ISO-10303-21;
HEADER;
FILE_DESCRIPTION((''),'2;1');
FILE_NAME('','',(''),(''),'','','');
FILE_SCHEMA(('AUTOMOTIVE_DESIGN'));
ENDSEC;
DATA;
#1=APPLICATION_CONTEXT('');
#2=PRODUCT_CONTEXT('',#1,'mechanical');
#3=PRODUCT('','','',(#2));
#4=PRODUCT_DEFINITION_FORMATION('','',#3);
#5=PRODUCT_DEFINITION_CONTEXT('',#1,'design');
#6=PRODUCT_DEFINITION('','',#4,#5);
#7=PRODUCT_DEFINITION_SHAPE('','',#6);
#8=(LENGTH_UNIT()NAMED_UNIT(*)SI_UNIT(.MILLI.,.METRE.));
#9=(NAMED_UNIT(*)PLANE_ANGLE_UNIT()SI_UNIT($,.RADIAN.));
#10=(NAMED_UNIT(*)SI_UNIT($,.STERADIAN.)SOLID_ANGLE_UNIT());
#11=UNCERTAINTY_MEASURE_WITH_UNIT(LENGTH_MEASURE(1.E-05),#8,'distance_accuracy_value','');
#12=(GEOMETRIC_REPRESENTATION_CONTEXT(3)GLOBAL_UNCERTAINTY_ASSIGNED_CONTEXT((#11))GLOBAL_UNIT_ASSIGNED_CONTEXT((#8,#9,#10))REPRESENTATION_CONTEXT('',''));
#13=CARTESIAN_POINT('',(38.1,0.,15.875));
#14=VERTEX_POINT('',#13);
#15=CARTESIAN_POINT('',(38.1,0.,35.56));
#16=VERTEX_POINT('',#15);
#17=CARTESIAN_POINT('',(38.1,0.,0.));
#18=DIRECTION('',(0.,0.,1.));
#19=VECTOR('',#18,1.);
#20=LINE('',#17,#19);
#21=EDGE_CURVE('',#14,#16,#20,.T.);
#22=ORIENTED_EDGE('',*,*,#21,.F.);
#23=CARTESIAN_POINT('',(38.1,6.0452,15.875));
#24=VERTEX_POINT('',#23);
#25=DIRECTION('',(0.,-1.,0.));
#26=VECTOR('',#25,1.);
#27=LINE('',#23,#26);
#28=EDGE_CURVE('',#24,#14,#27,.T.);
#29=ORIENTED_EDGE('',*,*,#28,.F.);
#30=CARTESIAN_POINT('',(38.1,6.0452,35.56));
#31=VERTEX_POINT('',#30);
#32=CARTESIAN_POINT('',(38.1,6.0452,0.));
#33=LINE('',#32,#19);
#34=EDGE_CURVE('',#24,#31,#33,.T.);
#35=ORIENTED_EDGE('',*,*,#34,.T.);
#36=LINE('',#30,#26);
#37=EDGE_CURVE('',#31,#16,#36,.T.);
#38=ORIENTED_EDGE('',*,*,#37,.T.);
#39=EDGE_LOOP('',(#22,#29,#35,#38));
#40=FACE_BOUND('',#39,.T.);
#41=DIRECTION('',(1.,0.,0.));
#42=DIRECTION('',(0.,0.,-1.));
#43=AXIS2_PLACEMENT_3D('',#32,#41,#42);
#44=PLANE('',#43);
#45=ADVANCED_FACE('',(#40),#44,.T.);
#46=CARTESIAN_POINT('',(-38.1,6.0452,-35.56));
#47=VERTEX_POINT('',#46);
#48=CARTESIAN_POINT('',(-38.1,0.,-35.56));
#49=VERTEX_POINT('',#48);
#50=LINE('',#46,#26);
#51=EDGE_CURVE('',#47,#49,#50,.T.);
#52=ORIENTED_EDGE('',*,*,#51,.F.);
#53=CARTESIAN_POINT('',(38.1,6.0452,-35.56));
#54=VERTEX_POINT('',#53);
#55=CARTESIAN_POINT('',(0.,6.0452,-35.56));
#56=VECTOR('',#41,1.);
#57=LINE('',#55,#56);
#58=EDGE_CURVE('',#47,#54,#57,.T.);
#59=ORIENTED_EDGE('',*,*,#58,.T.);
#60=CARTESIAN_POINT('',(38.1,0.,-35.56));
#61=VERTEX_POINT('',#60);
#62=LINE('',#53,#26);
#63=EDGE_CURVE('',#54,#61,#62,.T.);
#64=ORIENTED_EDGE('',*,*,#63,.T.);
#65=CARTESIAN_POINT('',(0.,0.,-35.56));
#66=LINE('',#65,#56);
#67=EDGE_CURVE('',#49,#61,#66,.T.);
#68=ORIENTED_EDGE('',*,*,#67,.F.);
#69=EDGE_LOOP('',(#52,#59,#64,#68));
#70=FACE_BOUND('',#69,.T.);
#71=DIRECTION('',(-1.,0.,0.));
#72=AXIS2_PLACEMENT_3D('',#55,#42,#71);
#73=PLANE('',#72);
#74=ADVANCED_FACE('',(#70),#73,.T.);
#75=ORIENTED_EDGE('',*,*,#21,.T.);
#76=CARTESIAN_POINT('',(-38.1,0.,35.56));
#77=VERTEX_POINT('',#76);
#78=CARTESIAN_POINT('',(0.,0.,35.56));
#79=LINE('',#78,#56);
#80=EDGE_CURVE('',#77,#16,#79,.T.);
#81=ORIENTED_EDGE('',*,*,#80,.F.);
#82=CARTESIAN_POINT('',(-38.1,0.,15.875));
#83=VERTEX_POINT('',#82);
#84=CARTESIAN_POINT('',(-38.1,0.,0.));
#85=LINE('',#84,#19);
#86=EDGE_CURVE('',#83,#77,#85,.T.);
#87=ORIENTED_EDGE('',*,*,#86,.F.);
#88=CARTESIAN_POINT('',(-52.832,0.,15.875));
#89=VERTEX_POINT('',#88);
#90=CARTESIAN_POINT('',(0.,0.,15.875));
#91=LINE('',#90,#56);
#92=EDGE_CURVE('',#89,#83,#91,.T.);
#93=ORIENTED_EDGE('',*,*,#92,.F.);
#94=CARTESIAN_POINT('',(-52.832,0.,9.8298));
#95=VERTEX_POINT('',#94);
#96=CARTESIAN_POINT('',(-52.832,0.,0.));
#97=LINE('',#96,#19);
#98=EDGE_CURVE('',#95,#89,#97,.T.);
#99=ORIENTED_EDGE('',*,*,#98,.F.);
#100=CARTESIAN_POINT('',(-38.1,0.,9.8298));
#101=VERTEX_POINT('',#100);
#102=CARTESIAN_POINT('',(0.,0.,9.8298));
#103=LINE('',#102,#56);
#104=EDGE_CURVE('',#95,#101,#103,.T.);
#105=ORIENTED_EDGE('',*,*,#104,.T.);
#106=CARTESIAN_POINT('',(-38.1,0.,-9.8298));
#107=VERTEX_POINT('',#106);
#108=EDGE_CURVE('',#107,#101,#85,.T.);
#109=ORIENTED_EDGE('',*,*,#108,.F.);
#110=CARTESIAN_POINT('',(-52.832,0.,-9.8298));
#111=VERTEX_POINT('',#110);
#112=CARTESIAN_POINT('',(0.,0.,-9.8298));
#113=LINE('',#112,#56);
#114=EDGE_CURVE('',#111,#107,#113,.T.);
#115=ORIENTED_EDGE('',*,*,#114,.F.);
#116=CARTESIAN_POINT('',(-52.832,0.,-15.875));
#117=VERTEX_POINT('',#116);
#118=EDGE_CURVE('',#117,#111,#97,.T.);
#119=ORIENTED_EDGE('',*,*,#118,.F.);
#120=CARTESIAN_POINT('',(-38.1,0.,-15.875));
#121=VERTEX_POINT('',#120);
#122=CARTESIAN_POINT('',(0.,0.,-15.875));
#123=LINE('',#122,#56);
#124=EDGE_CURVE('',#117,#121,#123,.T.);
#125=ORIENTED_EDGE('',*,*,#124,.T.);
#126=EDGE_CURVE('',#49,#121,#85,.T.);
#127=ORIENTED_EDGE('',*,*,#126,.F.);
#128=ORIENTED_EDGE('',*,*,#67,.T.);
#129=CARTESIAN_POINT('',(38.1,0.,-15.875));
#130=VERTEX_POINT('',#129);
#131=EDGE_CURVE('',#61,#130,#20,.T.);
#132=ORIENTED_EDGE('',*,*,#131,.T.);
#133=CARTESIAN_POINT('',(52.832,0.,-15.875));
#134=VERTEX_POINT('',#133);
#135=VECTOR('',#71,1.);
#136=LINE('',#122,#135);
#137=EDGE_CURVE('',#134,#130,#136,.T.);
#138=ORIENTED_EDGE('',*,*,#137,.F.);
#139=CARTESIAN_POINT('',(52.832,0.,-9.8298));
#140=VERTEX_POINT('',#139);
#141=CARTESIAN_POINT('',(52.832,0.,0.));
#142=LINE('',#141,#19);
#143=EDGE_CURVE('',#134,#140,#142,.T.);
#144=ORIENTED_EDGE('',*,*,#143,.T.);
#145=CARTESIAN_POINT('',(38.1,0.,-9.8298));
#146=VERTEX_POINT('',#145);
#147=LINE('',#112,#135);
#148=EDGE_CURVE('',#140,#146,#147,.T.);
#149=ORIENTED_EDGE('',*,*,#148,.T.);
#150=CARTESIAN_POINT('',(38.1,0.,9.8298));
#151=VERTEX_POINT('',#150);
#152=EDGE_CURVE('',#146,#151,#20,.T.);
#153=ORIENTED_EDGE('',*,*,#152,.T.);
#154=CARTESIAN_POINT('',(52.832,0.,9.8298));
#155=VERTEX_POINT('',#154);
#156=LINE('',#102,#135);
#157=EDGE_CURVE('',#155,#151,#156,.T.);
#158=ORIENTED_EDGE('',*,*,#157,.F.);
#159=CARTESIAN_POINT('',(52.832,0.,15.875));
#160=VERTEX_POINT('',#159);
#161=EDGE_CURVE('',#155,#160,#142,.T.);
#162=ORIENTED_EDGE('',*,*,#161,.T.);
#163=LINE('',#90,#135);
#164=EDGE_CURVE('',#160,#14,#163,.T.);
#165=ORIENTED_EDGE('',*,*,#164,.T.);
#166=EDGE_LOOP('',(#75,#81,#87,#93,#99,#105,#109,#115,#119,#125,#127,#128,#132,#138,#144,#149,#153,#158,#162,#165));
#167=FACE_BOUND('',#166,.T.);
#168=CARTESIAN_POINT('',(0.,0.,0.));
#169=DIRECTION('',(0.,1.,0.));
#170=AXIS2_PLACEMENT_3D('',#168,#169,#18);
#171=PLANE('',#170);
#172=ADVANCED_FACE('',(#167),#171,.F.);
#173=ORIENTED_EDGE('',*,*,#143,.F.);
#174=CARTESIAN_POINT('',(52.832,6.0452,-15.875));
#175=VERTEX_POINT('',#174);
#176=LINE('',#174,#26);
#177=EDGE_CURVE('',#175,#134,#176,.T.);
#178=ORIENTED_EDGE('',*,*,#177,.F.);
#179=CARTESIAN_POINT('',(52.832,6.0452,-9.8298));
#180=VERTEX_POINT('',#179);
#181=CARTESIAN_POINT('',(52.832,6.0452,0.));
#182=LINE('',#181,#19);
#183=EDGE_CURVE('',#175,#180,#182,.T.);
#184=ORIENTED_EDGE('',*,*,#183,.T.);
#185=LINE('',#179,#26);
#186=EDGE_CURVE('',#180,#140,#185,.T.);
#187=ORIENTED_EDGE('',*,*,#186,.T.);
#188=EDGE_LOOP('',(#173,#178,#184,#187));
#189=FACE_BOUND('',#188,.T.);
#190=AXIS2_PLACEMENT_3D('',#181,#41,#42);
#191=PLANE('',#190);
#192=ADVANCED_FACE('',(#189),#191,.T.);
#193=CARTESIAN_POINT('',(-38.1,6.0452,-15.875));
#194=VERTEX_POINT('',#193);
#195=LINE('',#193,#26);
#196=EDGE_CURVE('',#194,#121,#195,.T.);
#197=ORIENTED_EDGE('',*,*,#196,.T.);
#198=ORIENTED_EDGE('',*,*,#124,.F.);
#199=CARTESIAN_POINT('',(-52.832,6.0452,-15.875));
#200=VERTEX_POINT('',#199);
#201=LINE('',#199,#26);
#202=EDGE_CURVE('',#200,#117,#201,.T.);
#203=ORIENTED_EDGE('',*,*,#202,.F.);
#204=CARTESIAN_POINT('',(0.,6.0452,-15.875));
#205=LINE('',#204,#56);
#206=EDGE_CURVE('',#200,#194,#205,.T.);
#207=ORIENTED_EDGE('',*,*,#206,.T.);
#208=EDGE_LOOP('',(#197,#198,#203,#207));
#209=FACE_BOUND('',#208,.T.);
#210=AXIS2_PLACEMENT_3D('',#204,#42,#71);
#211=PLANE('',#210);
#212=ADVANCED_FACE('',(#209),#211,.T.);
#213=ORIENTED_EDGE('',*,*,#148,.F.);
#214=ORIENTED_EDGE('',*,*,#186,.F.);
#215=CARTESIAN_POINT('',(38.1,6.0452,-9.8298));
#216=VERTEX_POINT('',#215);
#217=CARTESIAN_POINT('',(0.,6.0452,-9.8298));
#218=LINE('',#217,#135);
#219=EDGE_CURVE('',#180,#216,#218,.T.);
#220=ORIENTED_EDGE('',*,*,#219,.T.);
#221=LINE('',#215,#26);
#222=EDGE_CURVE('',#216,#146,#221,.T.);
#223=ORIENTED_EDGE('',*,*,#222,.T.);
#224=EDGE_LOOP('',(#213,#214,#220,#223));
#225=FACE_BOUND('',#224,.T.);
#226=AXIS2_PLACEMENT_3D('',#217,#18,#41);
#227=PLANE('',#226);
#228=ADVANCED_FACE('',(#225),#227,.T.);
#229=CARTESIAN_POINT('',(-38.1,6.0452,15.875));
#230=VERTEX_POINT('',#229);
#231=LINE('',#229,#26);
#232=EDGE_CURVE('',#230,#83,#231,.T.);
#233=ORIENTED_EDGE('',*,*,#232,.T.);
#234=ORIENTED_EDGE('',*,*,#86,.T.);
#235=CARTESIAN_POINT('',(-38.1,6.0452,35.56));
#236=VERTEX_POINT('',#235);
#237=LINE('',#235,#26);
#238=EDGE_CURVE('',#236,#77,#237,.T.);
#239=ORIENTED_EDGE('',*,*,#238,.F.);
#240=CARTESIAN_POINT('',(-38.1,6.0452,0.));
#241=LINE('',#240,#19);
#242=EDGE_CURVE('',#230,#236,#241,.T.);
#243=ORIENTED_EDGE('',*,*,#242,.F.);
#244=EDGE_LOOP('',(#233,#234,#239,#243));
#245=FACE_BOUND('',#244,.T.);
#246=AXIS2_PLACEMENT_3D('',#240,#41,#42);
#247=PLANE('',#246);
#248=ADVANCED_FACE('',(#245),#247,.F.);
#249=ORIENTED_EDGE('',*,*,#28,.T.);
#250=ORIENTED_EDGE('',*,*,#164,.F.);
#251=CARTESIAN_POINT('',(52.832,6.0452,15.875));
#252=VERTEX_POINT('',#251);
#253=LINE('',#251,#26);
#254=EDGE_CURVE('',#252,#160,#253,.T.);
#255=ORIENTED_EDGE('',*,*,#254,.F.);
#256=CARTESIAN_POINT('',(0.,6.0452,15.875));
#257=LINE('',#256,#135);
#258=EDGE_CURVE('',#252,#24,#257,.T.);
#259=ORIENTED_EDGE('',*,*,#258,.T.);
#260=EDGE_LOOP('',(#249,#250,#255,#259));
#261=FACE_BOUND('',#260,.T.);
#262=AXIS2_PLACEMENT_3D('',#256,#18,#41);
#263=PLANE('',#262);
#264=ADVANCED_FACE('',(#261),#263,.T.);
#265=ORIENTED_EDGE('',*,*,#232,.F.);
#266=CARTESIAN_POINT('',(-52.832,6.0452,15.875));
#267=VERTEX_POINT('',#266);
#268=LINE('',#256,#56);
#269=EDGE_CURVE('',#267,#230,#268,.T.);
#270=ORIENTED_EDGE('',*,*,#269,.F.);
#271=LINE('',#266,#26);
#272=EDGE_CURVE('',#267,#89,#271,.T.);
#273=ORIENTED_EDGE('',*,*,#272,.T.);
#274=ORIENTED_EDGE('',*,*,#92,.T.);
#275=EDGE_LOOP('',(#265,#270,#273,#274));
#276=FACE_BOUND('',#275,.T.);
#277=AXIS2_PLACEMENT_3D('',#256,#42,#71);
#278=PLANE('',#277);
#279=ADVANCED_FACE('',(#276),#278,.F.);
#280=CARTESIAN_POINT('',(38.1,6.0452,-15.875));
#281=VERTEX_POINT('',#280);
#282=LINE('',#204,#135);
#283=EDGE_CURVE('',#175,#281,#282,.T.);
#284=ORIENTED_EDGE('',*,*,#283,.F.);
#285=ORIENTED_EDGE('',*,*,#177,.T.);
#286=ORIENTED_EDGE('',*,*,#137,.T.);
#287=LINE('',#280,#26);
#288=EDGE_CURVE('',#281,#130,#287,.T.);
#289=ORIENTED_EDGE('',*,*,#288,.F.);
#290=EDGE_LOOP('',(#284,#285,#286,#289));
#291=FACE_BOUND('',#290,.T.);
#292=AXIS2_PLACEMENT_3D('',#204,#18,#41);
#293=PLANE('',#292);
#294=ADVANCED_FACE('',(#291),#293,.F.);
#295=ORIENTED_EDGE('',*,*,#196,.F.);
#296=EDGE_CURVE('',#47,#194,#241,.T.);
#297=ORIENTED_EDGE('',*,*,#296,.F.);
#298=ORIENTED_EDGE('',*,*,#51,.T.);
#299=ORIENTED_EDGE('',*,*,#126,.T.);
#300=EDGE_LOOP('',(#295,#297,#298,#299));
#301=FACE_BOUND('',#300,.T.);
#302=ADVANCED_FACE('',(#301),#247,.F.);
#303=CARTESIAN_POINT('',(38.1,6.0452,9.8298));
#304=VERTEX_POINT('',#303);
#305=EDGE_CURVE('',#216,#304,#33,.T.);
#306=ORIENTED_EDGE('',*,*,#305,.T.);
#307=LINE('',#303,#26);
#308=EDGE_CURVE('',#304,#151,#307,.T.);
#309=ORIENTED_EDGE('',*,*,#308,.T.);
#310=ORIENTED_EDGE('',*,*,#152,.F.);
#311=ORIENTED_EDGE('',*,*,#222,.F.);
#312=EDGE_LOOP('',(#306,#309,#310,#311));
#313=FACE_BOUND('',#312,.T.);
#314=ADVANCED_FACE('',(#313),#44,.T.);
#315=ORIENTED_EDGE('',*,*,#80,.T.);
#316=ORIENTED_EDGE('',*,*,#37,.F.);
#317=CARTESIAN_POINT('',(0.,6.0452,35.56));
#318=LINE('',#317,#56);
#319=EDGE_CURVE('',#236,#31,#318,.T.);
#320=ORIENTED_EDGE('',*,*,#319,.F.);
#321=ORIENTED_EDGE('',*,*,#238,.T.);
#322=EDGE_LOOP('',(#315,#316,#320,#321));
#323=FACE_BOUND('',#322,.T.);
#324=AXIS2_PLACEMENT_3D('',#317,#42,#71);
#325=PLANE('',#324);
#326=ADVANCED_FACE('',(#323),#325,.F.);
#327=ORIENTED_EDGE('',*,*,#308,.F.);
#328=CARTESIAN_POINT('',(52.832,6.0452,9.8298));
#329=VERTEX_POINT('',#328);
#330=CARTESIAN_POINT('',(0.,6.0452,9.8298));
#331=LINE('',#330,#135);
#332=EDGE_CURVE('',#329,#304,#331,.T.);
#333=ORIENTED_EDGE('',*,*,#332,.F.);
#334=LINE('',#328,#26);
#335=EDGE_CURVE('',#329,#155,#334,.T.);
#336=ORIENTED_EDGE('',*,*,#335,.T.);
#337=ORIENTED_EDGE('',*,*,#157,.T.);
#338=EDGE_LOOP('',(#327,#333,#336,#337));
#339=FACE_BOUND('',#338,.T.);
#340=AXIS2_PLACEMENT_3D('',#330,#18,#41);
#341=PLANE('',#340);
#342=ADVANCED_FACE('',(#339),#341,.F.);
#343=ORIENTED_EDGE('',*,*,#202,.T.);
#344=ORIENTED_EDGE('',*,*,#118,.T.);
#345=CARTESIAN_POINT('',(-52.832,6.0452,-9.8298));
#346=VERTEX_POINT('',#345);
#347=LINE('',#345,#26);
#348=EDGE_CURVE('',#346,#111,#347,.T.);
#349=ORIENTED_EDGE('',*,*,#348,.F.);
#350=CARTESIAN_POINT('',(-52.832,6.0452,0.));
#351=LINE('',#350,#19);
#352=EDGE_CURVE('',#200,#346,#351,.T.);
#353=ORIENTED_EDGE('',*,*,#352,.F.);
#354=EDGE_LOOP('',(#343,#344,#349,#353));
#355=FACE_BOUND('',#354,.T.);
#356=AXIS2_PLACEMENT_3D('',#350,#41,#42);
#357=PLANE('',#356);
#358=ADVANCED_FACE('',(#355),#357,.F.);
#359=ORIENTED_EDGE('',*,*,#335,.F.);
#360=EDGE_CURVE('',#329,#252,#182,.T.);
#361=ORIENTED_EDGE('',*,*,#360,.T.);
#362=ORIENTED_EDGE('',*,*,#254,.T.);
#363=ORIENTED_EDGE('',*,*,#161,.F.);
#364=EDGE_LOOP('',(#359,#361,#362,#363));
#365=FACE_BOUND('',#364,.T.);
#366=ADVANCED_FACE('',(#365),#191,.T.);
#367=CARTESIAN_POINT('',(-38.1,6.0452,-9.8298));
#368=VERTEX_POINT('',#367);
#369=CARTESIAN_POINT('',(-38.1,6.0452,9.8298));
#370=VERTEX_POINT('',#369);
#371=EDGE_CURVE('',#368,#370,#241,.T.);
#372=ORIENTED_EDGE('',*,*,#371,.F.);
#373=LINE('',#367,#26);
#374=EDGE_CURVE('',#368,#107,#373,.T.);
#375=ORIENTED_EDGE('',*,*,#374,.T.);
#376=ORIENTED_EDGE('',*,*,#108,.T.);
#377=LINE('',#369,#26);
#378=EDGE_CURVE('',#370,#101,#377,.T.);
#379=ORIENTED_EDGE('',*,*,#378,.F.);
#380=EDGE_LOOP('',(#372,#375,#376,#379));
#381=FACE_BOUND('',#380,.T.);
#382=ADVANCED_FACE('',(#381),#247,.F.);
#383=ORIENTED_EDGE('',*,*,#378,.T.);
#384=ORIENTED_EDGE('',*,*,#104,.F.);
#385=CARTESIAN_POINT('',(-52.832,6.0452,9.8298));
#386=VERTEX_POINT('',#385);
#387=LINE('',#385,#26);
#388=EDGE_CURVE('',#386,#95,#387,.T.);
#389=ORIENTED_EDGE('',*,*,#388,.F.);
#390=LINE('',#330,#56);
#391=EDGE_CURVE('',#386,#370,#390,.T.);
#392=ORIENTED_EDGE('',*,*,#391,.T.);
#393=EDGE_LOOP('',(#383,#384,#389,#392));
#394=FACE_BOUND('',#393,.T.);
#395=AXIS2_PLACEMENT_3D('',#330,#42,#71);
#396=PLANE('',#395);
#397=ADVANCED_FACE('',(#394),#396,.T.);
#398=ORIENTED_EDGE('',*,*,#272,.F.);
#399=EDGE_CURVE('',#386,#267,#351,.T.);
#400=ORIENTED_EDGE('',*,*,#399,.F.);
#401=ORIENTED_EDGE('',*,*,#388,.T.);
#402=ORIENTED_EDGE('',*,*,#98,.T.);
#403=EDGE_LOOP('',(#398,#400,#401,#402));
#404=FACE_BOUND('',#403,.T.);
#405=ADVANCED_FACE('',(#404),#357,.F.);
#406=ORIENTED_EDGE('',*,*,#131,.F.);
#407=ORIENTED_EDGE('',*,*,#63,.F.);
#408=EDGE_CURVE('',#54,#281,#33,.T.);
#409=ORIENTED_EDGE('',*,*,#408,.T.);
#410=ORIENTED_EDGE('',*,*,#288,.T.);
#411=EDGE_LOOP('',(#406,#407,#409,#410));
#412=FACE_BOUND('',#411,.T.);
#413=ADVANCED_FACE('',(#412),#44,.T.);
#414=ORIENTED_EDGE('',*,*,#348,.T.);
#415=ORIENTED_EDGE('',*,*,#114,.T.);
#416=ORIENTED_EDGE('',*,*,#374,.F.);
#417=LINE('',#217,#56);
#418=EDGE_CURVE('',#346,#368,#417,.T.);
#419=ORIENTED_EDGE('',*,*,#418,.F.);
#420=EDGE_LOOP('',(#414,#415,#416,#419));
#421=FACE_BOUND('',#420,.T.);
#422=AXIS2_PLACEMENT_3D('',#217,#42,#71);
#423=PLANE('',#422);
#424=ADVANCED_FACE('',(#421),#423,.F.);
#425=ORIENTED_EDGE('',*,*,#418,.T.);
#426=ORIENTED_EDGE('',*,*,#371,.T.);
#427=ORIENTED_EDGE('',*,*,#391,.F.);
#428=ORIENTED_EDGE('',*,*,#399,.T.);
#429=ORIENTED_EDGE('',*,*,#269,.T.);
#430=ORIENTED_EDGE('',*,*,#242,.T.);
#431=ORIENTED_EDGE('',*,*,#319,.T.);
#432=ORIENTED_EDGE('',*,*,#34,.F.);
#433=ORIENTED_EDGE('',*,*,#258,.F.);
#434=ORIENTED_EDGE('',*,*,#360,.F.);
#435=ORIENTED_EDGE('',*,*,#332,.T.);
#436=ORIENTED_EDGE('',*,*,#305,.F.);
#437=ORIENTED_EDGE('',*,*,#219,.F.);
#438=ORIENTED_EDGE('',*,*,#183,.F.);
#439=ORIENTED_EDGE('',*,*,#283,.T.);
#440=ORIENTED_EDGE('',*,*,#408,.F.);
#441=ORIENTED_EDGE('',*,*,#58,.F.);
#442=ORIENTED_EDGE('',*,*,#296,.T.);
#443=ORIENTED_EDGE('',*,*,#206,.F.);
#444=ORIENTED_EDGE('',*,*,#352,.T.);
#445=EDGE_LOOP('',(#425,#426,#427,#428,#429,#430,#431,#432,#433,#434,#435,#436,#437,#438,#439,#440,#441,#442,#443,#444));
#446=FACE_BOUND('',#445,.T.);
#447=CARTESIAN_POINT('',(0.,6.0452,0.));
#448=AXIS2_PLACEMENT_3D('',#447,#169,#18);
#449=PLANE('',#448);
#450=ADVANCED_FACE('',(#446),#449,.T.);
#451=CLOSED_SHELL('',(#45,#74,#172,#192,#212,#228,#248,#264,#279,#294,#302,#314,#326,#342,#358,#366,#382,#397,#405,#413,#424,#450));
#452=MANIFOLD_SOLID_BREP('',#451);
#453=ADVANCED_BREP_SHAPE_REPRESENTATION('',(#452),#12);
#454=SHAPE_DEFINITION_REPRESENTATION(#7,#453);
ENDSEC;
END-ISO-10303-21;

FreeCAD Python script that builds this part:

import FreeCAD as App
import Part
import Sketcher

V = App.Vector
Q = App.Units.Quantity

doc = App.newDocument("Part")
body = doc.addObject("PartDesign::Body", "Body")

# Sketch on XZ plane
sketch1 = body.newObject("Sketcher::SketchObject", "Sketch")
sketch1.AttachmentSupport = (doc.getObject("XZ_Plane"), [""])
sketch1.MapMode = "FlatFace"
sketch1.addGeometry(Part.LineSegment(V(-38, 16, 0), V(-38, 36, 0)), False)
sketch1.addGeometry(Part.LineSegment(V(-38, 36, 0), V(38, 36, 0)), False)
sketch1.addGeometry(Part.LineSegment(V(38, 36, 0), V(38, 16, 0)), False)
sketch1.addGeometry(Part.LineSegment(V(38, 16, 0), V(53, 16, 0)), False)
sketch1.addGeometry(Part.LineSegment(V(53, 16, 0), V(53, 10, 0)), False)
sketch1.addGeometry(Part.LineSegment(V(53, 10, 0), V(38, 10, 0)), False)
sketch1.addGeometry(Part.LineSegment(V(38, 10, 0), V(38, -10, 0)), False)
sketch1.addGeometry(Part.LineSegment(V(38, -10, 0), V(53, -10, 0)), False)
sketch1.addGeometry(Part.LineSegment(V(53, -10, 0), V(53, -16, 0)), False)
sketch1.addGeometry(Part.LineSegment(V(53, -16, 0), V(38, -16, 0)), False)
sketch1.addGeometry(Part.LineSegment(V(38, -16, 0), V(38, -36, 0)), False)
sketch1.addGeometry(Part.LineSegment(V(38, -36, 0), V(-38, -36, 0)), False)
sketch1.addGeometry(Part.LineSegment(V(-38, -36, 0), V(-38, -16, 0)), False)
sketch1.addGeometry(Part.LineSegment(V(-38, -16, 0), V(-53, -16, 0)), False)
sketch1.addGeometry(Part.LineSegment(V(-53, -16, 0), V(-53, -10, 0)), False)
sketch1.addGeometry(Part.LineSegment(V(-53, -10, 0), V(-38, -10, 0)), False)
sketch1.addGeometry(Part.LineSegment(V(-38, -10, 0), V(-38, 10, 0)), False)
sketch1.addGeometry(Part.LineSegment(V(-38, 10, 0), V(-53, 10, 0)), False)
sketch1.addGeometry(Part.LineSegment(V(-53, 10, 0), V(-53, 16, 0)), False)
sketch1.addGeometry(Part.LineSegment(V(-53, 16, 0), V(-38, 16, 0)), False)
sketch1.addConstraint(Sketcher.Constraint("Coincident", 0, 2, 1, 1))
sketch1.addConstraint(Sketcher.Constraint("Coincident", 1, 2, 2, 1))
sketch1.addConstraint(Sketcher.Constraint("Coincident", 2, 2, 3, 1))
sketch1.addConstraint(Sketcher.Constraint("Coincident", 3, 2, 4, 1))
sketch1.addConstraint(Sketcher.Constraint("Coincident", 4, 2, 5, 1))
sketch1.addConstraint(Sketcher.Constraint("Coincident", 5, 2, 6, 1))
sketch1.addConstraint(Sketcher.Constraint("Coincident", 6, 2, 7, 1))
sketch1.addConstraint(Sketcher.Constraint("Coincident", 7, 2, 8, 1))
sketch1.addConstraint(Sketcher.Constraint("Coincident", 8, 2, 9, 1))
sketch1.addConstraint(Sketcher.Constraint("Coincident", 9, 2, 10, 1))
sketch1.addConstraint(Sketcher.Constraint("Coincident", 10, 2, 11, 1))
sketch1.addConstraint(Sketcher.Constraint("Coincident", 11, 2, 12, 1))
sketch1.addConstraint(Sketcher.Constraint("Coincident", 12, 2, 13, 1))
sketch1.addConstraint(Sketcher.Constraint("Coincident", 13, 2, 14, 1))
sketch1.addConstraint(Sketcher.Constraint("Coincident", 14, 2, 15, 1))
sketch1.addConstraint(Sketcher.Constraint("Coincident", 15, 2, 16, 1))
sketch1.addConstraint(Sketcher.Constraint("Coincident", 16, 2, 17, 1))
sketch1.addConstraint(Sketcher.Constraint("Coincident", 17, 2, 18, 1))
sketch1.addConstraint(Sketcher.Constraint("Coincident", 18, 2, 19, 1))
sketch1.addConstraint(Sketcher.Constraint("Coincident", 19, 2, 0, 1))
sketch1.addConstraint(Sketcher.Constraint("Vertical", 0))
sketch1.addConstraint(Sketcher.Constraint("Horizontal", 1))
sketch1.addConstraint(Sketcher.Constraint("Vertical", 2))
sketch1.addConstraint(Sketcher.Constraint("Horizontal", 3))
sketch1.addConstraint(Sketcher.Constraint("Vertical", 4))
sketch1.addConstraint(Sketcher.Constraint("Horizontal", 5))
sketch1.addConstraint(Sketcher.Constraint("Vertical", 6))
sketch1.addConstraint(Sketcher.Constraint("Horizontal", 7))
sketch1.addConstraint(Sketcher.Constraint("Vertical", 8))
sketch1.addConstraint(Sketcher.Constraint("Horizontal", 9))
sketch1.addConstraint(Sketcher.Constraint("Vertical", 10))
sketch1.addConstraint(Sketcher.Constraint("Horizontal", 11))
sketch1.addConstraint(Sketcher.Constraint("Vertical", 12))
sketch1.addConstraint(Sketcher.Constraint("Horizontal", 13))
sketch1.addConstraint(Sketcher.Constraint("Vertical", 14))
sketch1.addConstraint(Sketcher.Constraint("Horizontal", 15))
sketch1.addConstraint(Sketcher.Constraint("Vertical", 16))
sketch1.addConstraint(Sketcher.Constraint("Horizontal", 17))
sketch1.addConstraint(Sketcher.Constraint("Vertical", 18))
sketch1.addConstraint(Sketcher.Constraint("Horizontal", 19))
sketch1.addConstraint(Sketcher.Constraint("Symmetric", 0, 2, 10, 2, -1, 1))
sketch1.addConstraint(Sketcher.Constraint("Symmetric", 2, 2, 12, 2, -1, 1))
sketch1.addConstraint(Sketcher.Constraint("Symmetric", 4, 2, 14, 2, -1, 1))
sketch1.addConstraint(Sketcher.Constraint("Symmetric", 6, 2, 16, 2, -1, 1))
sketch1.addConstraint(Sketcher.Constraint("Symmetric", 8, 2, 18, 2, -1, 1))
sketch1.addConstraint(Sketcher.Constraint("Symmetric", 9, 2, 12, 2, -2))
sketch1.addConstraint(Sketcher.Constraint("Symmetric", 7, 2, 14, 2, -2))
sketch1.addConstraint(Sketcher.Constraint("Vertical", 2, 2, 5, 2))
sketch1.addConstraint(Sketcher.Constraint("DistanceX", 1, 1, 1, 2, Q("3 in")))
sketch1.addConstraint(Sketcher.Constraint("DistanceX", 3, 1, 3, 2, Q("0.58 in")))
sketch1.addConstraint(Sketcher.Constraint("DistanceY", -1, 1, 0, 2, Q("1.4 in")))
sketch1.addConstraint(Sketcher.Constraint("DistanceY", 0, 1, 0, 2, Q("0.775 in")))
sketch1.addConstraint(Sketcher.Constraint("DistanceY", 4, 2, 4, 1, Q("0.238 in")))
pad1 = body.newObject("PartDesign::Pad", "Pad")
pad1.Profile = sketch1
pad1.Length = Q("0.238 in")
pad1.Reversed = True

doc.recompute()
